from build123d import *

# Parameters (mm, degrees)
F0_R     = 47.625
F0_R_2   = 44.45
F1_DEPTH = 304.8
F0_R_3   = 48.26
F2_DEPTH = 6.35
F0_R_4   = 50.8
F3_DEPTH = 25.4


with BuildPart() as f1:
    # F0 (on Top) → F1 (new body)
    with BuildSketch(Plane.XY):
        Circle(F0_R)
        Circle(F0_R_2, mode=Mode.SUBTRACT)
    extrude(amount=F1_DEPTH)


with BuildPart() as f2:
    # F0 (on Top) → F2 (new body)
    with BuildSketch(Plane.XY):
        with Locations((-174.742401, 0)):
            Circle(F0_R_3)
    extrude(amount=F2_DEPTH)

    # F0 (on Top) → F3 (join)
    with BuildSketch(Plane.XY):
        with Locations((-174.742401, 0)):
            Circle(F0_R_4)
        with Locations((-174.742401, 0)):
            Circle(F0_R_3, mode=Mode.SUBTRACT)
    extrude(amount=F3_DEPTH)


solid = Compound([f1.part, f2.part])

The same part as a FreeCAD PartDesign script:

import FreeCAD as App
import Part
import Sketcher
from FreeCAD import Vector
Q = App.Units.Quantity

doc = App.newDocument("Part")
body = doc.addObject("PartDesign::Body", "Body")

# Sketch on XY plane
sketch1 = doc.addObject("Sketcher::SketchObject", "Sketch")
body.addObject(sketch1)
sketch1.AttachmentSupport = (doc.XY_Plane, [""])
sketch1.MapMode = "FlatFace"
sketch1.addGeometry([
    Part.Circle(Vector(0, 0, 0), Vector(0, 0, 1), 48),
    Part.Circle(Vector(0, 0, 0), Vector(0, 0, 1), 44),
], False)
sketch1.addConstraint([
    Sketcher.Constraint("Coincident", 0, 3, -1, 1),
    Sketcher.Constraint("Coincident", 1, 3, -1, 1),
    Sketcher.Constraint("Diameter", 1, Q("3.5 in")),
    Sketcher.Constraint("Diameter", 0, Q("3.75 in")),
])
pad1 = doc.addObject("PartDesign::Pad", "Pad")
body.addObject(pad1)
pad1.Profile = sketch1
pad1.Length = Q("12 in")
body2 = doc.addObject("PartDesign::Body", "Body001")

# Sketch on XY plane
sketch2 = doc.addObject("Sketcher::SketchObject", "Sketch001")
body2.addObject(sketch2)
sketch2.AttachmentSupport = (doc.getObject("XY_Plane001"), [""])
sketch2.MapMode = "FlatFace"
sketch2.addGeometry(Part.Circle(Vector(-175, 0, 0), Vector(0, 0, 1), 48), False)
sketch2.addConstraint([
    Sketcher.Constraint("PointOnObject", 0, 3, -1),
    Sketcher.Constraint("Diameter", 0, Q("3.8 in")),
    Sketcher.Constraint("DistanceX", 0, 3, -1, 1, 174.742401),
])
pad2 = doc.addObject("PartDesign::Pad", "Pad001")
body2.addObject(pad2)
pad2.Profile = sketch2
pad2.Length = Q("0.25 in")

# Sketch on XY plane
sketch3 = doc.addObject("Sketcher::SketchObject", "Sketch002")
body2.addObject(sketch3)
sketch3.AttachmentSupport = (doc.getObject("XY_Plane001"), [""])
sketch3.MapMode = "FlatFace"
sketch3.addGeometry([
    Part.Circle(Vector(-175, 0, 0), Vector(0, 0, 1), 51),
    Part.Circle(Vector(-175, 0, 0), Vector(0, 0, 1), 48),
], False)
sketch3.addConstraint([
    Sketcher.Constraint("Coincident", 1, 3, 0, 3),
    Sketcher.Constraint("PointOnObject", 0, 3, -1),
    Sketcher.Constraint("Diameter", 0, Q("4 in")),
    Sketcher.Constraint("Diameter", 1, Q("3.8 in")),
    Sketcher.Constraint("DistanceX", 0, 3, -1, 1, 174.742401),
])
pad3 = doc.addObject("PartDesign::Pad", "Pad002")
body2.addObject(pad3)
pad3.Profile = sketch3
pad3.Length = Q("1 in")

doc.recompute()
